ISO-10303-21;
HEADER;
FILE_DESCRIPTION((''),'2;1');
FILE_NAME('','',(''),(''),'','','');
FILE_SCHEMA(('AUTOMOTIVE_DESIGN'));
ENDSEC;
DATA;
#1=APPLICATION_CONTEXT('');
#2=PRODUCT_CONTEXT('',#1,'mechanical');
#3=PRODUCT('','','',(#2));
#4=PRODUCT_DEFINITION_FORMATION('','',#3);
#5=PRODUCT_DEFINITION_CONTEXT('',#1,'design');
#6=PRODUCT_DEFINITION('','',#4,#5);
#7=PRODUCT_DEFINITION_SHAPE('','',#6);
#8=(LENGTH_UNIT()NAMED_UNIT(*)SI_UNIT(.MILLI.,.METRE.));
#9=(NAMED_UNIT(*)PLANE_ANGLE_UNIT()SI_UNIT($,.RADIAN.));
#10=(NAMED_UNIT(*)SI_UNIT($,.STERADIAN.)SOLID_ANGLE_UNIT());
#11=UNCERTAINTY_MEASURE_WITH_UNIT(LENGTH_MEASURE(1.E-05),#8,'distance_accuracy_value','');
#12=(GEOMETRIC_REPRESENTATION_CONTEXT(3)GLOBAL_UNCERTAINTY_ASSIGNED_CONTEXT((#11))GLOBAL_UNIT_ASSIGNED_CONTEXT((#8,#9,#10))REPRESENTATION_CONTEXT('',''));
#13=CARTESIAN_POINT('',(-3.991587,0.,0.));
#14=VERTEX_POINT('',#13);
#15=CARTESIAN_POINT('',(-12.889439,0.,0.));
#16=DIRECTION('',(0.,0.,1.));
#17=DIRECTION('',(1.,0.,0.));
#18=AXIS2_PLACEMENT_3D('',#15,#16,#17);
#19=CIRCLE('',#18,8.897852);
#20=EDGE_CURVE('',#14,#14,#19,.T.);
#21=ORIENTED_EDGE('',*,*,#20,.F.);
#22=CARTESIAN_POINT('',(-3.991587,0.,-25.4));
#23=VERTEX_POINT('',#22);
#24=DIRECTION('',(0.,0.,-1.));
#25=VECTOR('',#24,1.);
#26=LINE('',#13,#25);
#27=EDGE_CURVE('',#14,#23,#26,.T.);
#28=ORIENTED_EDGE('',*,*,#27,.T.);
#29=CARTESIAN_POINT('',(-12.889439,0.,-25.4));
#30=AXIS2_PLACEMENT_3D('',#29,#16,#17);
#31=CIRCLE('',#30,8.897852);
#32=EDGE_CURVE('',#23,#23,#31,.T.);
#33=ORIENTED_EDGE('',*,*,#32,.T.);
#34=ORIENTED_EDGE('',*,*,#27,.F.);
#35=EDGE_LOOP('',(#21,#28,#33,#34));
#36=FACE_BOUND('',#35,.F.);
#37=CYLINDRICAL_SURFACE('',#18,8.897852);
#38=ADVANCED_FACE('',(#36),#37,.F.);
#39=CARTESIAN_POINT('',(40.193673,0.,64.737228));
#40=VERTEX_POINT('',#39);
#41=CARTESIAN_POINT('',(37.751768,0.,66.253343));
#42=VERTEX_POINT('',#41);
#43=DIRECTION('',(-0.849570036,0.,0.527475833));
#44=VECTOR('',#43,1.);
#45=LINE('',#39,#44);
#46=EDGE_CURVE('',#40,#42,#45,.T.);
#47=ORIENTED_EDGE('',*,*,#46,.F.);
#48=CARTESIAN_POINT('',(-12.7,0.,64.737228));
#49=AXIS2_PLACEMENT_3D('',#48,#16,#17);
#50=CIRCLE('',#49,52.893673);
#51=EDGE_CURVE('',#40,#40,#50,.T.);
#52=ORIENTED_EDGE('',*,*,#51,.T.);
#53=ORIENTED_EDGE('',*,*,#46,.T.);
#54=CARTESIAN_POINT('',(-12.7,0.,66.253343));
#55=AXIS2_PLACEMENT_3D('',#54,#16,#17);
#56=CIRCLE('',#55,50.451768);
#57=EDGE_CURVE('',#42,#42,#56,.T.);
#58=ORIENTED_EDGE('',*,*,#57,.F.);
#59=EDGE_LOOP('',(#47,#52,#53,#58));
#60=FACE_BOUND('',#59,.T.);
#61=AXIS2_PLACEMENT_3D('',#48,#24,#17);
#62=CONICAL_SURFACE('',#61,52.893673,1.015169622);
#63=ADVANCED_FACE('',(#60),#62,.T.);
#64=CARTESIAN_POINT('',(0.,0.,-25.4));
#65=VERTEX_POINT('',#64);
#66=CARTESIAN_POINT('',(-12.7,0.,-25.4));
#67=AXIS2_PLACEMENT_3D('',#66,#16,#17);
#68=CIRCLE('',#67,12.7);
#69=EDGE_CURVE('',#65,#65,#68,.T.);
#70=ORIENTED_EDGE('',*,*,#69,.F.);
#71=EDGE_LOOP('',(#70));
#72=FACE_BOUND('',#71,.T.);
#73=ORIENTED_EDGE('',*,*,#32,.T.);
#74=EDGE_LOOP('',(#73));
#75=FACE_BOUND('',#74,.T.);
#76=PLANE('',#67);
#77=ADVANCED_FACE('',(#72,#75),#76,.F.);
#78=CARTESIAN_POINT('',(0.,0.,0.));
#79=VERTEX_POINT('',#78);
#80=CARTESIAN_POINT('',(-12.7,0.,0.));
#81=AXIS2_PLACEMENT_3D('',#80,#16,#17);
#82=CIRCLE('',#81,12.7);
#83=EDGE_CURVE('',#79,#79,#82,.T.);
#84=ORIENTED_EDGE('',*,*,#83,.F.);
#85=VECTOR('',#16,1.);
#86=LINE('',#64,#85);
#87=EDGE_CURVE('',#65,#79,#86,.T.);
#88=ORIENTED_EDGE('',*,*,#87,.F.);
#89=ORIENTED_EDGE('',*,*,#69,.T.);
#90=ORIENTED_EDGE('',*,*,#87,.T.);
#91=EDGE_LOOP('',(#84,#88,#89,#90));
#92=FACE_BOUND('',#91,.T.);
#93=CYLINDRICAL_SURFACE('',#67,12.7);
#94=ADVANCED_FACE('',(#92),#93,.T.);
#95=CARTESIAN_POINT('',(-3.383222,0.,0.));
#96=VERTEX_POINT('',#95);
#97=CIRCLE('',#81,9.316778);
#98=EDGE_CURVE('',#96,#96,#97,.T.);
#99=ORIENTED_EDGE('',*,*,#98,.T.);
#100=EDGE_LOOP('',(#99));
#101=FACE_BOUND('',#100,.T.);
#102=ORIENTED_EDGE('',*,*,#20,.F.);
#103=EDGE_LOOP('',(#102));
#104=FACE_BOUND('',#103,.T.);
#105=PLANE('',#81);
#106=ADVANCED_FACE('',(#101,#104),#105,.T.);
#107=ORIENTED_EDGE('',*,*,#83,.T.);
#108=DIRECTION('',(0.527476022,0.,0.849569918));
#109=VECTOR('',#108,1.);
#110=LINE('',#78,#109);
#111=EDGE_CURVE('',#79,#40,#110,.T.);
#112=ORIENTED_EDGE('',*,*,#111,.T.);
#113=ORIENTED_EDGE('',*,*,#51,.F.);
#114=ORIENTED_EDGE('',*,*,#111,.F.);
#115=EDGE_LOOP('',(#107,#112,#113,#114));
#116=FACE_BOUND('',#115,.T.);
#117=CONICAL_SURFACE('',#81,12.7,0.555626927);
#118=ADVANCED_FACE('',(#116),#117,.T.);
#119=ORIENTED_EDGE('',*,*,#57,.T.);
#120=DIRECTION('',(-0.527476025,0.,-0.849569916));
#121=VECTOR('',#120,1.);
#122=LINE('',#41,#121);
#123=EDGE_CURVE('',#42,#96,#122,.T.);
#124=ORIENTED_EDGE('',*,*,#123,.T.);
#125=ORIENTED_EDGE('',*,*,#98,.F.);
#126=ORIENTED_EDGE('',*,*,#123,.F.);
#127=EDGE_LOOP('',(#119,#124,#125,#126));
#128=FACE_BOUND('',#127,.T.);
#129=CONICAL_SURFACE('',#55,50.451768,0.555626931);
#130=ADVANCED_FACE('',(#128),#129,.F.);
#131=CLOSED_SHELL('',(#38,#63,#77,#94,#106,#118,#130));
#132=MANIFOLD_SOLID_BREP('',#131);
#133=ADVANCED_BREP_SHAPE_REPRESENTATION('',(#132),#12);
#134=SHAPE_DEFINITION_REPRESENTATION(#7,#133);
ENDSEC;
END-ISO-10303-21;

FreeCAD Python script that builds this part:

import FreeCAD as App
import Part
import Sketcher

V = App.Vector
Q = App.Units.Quantity


def add_polygon(sketch, points):
    """Adds a closed chain of lines whose ends are joined by coincident constraints."""
    first, n = sketch.GeometryCount, len(points)
    for a, b in zip(points, points[1:] + points[:1]):
        sketch.addGeometry(Part.LineSegment(App.Vector(*a, 0), App.Vector(*b, 0)), False)
    for i in range(n):
        sketch.addConstraint(Sketcher.Constraint("Coincident", first + i, 2, first + (i + 1) % n, 1))

doc = App.newDocument("Part")
params = doc.addObject("Spreadsheet::Sheet", "Params")
for row, (alias, value) in enumerate([
    ("sketch1_height", "1 in"),
    ("sketch1_length", "3 in"),
    ("sketch1_width", "0.5 in"),
    ("revolution_angle", "360 deg"),
    ("pocket1_length", "1 in"),
    ("pocket2_length", "1 in"),
], start=1):
    params.set(f"A{row}", alias)
    params.set(f"B{row}", "=" + value)
    params.setAlias(f"B{row}", alias)

body = doc.addObject("PartDesign::Body", "Body")

# Sketch on XZ plane
sketch1 = body.newObject("Sketcher::SketchObject", "Sketch")
sketch1.AttachmentSupport = (doc.getObject("XZ_Plane"), [""])
sketch1.MapMode = "FlatFace"
add_polygon(sketch1, [(0, -25.4), (0, 0), (40.2, 64.7), (37.8, 66.3), (-3.4, 0), (-12.7, 0), (-12.7, -25.4)])  # lines 0-6
sketch1.addGeometry(Part.LineSegment(V(-12.7, -25.4, 0), V(-12.7, 66.3, 0)), True)  # axis
sketch1.addConstraint(Sketcher.Constraint("Vertical", 0))
sketch1.addConstraint(Sketcher.Constraint("Horizontal", 4))
sketch1.addConstraint(Sketcher.Constraint("Vertical", 5))
sketch1.addConstraint(Sketcher.Constraint("Horizontal", 6))
sketch1.addConstraint(Sketcher.Constraint("Vertical", 7))
sketch1.addConstraint(Sketcher.Constraint("Coincident", 0, 2, -1, 1))
sketch1.addConstraint(Sketcher.Constraint("Coincident", 7, 1, 5, 2))
sketch1.addConstraint(Sketcher.Constraint("PointOnObject", 3, 2, -1))
sketch1.addConstraint(Sketcher.Constraint("Perpendicular", 1, 2))
sketch1.addConstraint(Sketcher.Constraint("Perpendicular", 2, 3))
sketch1.addConstraint(Sketcher.Constraint("Horizontal", 2, 2, 7, 2))
sketch1.addConstraint(Sketcher.Constraint("DistanceY", 0, 1, 0, 2, Q("1 in")))
sketch1.addConstraint(Sketcher.Constraint("Distance", 1, Q("3 in")))
sketch1.addConstraint(Sketcher.Constraint("DistanceX", 6, 1, 6, 2, Q("0.5 in")))
sketch1.addConstraint(Sketcher.Constraint("Distance", 3, Q("77.984568 mm")))
sketch1.addConstraint(Sketcher.Constraint("DistanceX", 4, 2, 4, 1, Q("9.316778 mm")))
sketch1.setExpression("Constraints[18]", "Params.sketch1_height")
sketch1.setExpression("Constraints[19]", "Params.sketch1_length")
sketch1.setExpression("Constraints[20]", "Params.sketch1_width")
revolution = body.newObject("PartDesign::Revolution", "Revolution")
revolution.Profile = sketch1
revolution.ReferenceAxis = (sketch1, ["Axis0"])
revolution.setExpression("Angle", "Params.revolution_angle")

# Sketch on XY plane
sketch2 = body.newObject("Sketcher::SketchObject", "Sketch001")
sketch2.AttachmentSupport = (doc.getObject("XY_Plane"), [""])
sketch2.MapMode = "FlatFace"
sketch2.addGeometry(Part.Circle(V(-13, 0, 0), V(0, 0, 1), 8), False)
sketch2.addConstraint(Sketcher.Constraint("PointOnObject", 0, 3, -1))
sketch2.addConstraint(Sketcher.Constraint("DistanceX", 0, 3, -1, 1, Q("0.5 in")))
sketch2.addConstraint(Sketcher.Constraint("Diameter", 0, Q("15.165012 mm")))
pocket1 = body.newObject("PartDesign::Pocket", "Pocket")
pocket1.Profile = sketch2
pocket1.setExpression("Length", "Params.pocket1_length")

# Sketch on XY plane
sketch3 = body.newObject("Sketcher::SketchObject", "Sketch002")
sketch3.AttachmentSupport = (doc.getObject("XY_Plane"), [""])
sketch3.MapMode = "FlatFace"
sketch3.addGeometry(Part.Circle(V(-13, 0, 0), V(0, 0, 1), 9), False)
sketch3.addConstraint(Sketcher.Constraint("PointOnObject", 0, 3, -1))
sketch3.addConstraint(Sketcher.Constraint("Diameter", 0, Q("17.795704 mm")))
sketch3.addConstraint(Sketcher.Constraint("DistanceX", 0, 3, -1, 1, Q("12.889439 mm")))
pocket2 = body.newObject("PartDesign::Pocket", "Pocket001")
pocket2.Profile = sketch3
pocket2.setExpression("Length", "Params.pocket2_length")

doc.recompute()
